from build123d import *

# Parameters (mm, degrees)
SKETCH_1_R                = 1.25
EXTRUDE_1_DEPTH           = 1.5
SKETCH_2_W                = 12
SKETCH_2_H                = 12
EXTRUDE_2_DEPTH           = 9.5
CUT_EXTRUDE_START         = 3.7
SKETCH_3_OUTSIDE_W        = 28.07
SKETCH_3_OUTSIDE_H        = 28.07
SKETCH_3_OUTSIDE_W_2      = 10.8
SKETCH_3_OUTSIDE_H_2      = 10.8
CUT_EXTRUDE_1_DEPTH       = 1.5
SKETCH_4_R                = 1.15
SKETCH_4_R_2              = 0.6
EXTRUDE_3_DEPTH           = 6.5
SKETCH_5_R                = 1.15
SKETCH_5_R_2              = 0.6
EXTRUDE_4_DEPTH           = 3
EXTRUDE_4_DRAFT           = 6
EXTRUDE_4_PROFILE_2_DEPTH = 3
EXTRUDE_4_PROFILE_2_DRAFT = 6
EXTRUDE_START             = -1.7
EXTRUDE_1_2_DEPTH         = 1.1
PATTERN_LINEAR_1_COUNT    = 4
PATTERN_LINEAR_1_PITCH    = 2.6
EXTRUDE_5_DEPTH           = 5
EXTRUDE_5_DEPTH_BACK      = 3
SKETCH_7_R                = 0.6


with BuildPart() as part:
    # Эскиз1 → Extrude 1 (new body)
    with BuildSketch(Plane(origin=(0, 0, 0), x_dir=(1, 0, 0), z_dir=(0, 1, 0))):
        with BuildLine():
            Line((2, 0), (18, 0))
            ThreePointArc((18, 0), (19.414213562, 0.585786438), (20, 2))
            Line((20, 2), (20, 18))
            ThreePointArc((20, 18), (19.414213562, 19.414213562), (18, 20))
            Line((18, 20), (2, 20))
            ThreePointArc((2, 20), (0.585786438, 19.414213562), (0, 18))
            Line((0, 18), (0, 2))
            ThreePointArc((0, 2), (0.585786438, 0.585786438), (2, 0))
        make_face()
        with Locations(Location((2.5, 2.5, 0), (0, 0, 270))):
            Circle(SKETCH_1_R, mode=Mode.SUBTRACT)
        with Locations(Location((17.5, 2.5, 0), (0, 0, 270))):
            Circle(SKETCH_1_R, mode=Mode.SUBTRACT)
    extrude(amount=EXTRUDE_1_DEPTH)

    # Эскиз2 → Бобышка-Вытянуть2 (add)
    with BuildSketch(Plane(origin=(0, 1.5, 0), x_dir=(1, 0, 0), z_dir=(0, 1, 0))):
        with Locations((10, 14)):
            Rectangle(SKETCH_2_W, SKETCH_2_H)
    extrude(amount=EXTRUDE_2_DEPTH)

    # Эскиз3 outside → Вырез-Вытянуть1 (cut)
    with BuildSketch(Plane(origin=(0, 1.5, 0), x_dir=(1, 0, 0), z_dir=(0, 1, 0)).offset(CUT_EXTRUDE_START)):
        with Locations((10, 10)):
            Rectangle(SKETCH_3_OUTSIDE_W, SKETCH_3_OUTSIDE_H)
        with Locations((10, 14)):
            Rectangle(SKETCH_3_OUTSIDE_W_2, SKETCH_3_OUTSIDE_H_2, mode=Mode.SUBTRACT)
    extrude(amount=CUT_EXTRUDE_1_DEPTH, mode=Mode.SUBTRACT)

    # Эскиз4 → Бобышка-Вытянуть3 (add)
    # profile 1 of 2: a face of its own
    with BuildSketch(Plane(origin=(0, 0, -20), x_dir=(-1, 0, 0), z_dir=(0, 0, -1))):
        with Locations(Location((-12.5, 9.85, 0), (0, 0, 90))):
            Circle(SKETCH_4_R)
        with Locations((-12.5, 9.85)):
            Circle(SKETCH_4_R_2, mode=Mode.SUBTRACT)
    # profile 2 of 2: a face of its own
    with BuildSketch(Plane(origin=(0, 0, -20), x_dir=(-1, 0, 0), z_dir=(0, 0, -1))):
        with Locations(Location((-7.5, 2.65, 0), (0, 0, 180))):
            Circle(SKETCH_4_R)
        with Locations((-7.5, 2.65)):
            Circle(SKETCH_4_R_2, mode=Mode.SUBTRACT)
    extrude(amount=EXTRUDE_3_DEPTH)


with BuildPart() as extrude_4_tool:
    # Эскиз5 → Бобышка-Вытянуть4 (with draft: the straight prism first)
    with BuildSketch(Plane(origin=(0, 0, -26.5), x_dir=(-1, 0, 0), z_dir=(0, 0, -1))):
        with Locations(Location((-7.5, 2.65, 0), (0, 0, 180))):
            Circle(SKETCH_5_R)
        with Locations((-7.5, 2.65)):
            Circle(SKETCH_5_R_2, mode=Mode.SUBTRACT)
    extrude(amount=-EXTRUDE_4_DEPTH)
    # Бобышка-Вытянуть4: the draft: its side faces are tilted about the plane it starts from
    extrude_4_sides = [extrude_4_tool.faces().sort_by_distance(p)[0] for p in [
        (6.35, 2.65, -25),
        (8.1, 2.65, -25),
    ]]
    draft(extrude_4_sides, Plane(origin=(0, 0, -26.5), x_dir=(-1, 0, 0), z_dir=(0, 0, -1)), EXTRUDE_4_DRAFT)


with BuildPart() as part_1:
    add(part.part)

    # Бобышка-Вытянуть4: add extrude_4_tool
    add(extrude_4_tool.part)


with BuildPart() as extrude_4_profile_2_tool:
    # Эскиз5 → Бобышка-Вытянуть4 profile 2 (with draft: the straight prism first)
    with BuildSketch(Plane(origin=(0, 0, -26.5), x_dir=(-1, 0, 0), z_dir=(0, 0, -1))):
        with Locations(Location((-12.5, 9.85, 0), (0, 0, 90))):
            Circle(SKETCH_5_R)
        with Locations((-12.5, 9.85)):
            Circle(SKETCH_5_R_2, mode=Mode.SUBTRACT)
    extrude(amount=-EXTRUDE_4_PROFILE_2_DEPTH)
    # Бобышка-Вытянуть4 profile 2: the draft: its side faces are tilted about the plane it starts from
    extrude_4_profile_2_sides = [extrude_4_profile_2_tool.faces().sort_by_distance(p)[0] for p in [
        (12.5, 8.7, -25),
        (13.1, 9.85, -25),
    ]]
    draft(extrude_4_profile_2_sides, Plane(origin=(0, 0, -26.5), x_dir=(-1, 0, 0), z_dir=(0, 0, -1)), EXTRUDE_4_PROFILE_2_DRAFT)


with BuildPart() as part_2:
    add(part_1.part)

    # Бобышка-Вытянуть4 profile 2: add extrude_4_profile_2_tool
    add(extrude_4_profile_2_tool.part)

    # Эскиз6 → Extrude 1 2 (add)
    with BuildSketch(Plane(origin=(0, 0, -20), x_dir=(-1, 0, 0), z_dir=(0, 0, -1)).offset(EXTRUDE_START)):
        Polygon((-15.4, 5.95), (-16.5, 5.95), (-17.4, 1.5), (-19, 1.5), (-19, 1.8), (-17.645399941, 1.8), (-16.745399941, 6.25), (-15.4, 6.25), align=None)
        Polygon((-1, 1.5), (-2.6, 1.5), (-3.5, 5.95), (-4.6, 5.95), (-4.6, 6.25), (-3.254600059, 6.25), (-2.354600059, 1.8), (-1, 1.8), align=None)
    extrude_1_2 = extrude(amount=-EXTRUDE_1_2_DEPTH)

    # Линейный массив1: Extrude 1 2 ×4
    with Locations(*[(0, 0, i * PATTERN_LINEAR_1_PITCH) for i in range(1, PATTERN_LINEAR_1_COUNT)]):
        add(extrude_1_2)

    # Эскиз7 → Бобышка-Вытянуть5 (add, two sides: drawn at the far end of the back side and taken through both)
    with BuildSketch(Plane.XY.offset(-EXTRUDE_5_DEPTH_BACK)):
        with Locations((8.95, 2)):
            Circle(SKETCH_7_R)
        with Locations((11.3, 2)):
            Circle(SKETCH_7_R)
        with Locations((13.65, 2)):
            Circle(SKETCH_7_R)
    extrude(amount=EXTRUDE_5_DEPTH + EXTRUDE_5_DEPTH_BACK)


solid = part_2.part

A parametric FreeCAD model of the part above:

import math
import FreeCAD as App
import Part
import Sketcher
from FreeCAD import Vector


def faces_at(feature, points):
    """Names of the faces that lie closest to the given points."""
    faces = feature.Shape.Faces
    near = lambda p: min(range(len(faces)), key=lambda i: faces[i].distToShape(Part.Vertex(*p))[0])
    return sorted({f"Face{near(p) + 1}" for p in points})

doc = App.newDocument("Part")
body = doc.addObject("PartDesign::Body", "Body")

# Sketch on XZ plane
sketch1 = doc.addObject("Sketcher::SketchObject", "Sketch")
body.addObject(sketch1)
sketch1.AttachmentSupport = (doc.XZ_Plane, [""])
sketch1.MapMode = "FlatFace"
sketch1.addGeometry([
    Part.LineSegment(Vector(2, 0, 0), Vector(18, 0, 0)),  # 0
    Part.ArcOfCircle(Part.Circle(Vector(18, -2, 0), Vector(0, 0, 1), 2), math.radians(0), math.radians(90)),  # 1
    Part.LineSegment(Vector(20, -2, 0), Vector(20, -18, 0)),  # 2
    Part.ArcOfCircle(Part.Circle(Vector(18, -18, 0), Vector(0, 0, 1), 2), math.radians(-90), math.radians(0)),  # 3
    Part.LineSegment(Vector(18, -20, 0), Vector(2, -20, 0)),  # 4
    Part.ArcOfCircle(Part.Circle(Vector(2, -18, 0), Vector(0, 0, 1), 2), math.radians(-180), math.radians(-90)),  # 5
    Part.LineSegment(Vector(0, -18, 0), Vector(0, -2, 0)),  # 6
    Part.ArcOfCircle(Part.Circle(Vector(2, -2, 0), Vector(0, 0, 1), 2), math.radians(90), math.radians(180)),  # 7
    Part.Circle(Vector(2.5, -2.5, 0), Vector(0, 0, 1), 1.25),  # 8
    Part.Circle(Vector(17.5, -2.5, 0), Vector(0, 0, 1), 1.25),  # 9
], False)
sketch1.addConstraint([
    Sketcher.Constraint("Tangent", 0, 2, 1, 2),
    Sketcher.Constraint("Tangent", 1, 1, 2, 1),
    Sketcher.Constraint("Tangent", 2, 2, 3, 2),
    Sketcher.Constraint("Tangent", 3, 1, 4, 1),
    Sketcher.Constraint("Tangent", 4, 2, 5, 2),
    Sketcher.Constraint("Tangent", 5, 1, 6, 1),
    Sketcher.Constraint("Tangent", 6, 2, 7, 2),
    Sketcher.Constraint("Tangent", 7, 1, 0, 1),
    Sketcher.Constraint("Horizontal", 0),
    Sketcher.Constraint("Vertical", 2),
    Sketcher.Constraint("Horizontal", 4),
    Sketcher.Constraint("Vertical", 6),
    Sketcher.Constraint("Equal", 1, 3),
    Sketcher.Constraint("Equal", 3, 5),
    Sketcher.Constraint("Equal", 5, 7),
    Sketcher.Constraint("Equal", 8, 9),
    Sketcher.Constraint("PointOnObject", 0, 2, -1),
    Sketcher.Constraint("PointOnObject", 5, 1, -2),
    Sketcher.Constraint("Horizontal", 8, 3, 9, 3),
    Sketcher.Constraint("Equal", 4, 2),
    Sketcher.Constraint("Radius", 1, 2.0),
    Sketcher.Constraint("Diameter", 8, 2.5),
    Sketcher.Constraint("DistanceX", 0, 1, 0, 2, 16.0),
    Sketcher.Constraint("DistanceX", 8, 3, 9, 3, 15.0),
    Sketcher.Constraint("DistanceX", -1, 1, 8, 3, 2.5),
    Sketcher.Constraint("DistanceY", 8, 3, -1, 1, 2.5),
])
pad1 = doc.addObject("PartDesign::Pad", "Pad")
body.addObject(pad1)
pad1.Profile = sketch1
pad1.Length = 1.5
pad1.Reversed = True

# Sketch on XZ plane
sketch2 = doc.addObject("Sketcher::SketchObject", "Sketch001")
body.addObject(sketch2)
sketch2.AttachmentSupport = (doc.XZ_Plane, [""])
sketch2.MapMode = "FlatFace"
sketch2.AttachmentOffset = App.Placement(Vector(0, 0, -1.5), App.Rotation())
sketch2.addGeometry([
    Part.LineSegment(Vector(4, -20, 0), Vector(4, -8, 0)),
    Part.LineSegment(Vector(4, -8, 0), Vector(16, -8, 0)),
    Part.LineSegment(Vector(16, -8, 0), Vector(16, -20, 0)),
    Part.LineSegment(Vector(16, -20, 0), Vector(4, -20, 0)),
], False)
sketch2.addConstraint([
    Sketcher.Constraint("Coincident", 0, 2, 1, 1),
    Sketcher.Constraint("Coincident", 1, 2, 2, 1),
    Sketcher.Constraint("Coincident", 2, 2, 3, 1),
    Sketcher.Constraint("Coincident", 3, 2, 0, 1),
    Sketcher.Constraint("Vertical", 0),
    Sketcher.Constraint("Horizontal", 1),
    Sketcher.Constraint("Vertical", 2),
    Sketcher.Constraint("Horizontal", 3),
    Sketcher.Constraint("Equal", 3, 0),
    Sketcher.Constraint("DistanceX", 1, 1, 1, 2, 12.0),
    Sketcher.Constraint("DistanceX", -1, 1, 0, 2, 4.0),
    Sketcher.Constraint("DistanceY", 0, 2, -1, 1, 8.0),
])
pad2 = doc.addObject("PartDesign::Pad", "Pad001")
body.addObject(pad2)
pad2.Profile = sketch2
pad2.Length = 9.5
pad2.Reversed = True

# Sketch on XZ plane
sketch3 = doc.addObject("Sketcher::SketchObject", "Sketch002")
body.addObject(sketch3)
sketch3.AttachmentSupport = (doc.XZ_Plane, [""])
sketch3.MapMode = "FlatFace"
sketch3.AttachmentOffset = App.Placement(Vector(0, 0, -5.2), App.Rotation())
sketch3.addGeometry([
    Part.LineSegment(Vector(-4.035, -24.035, 0), Vector(-4.035, 4.035, 0)),  # 0
    Part.LineSegment(Vector(-4.035, 4.035, 0), Vector(24.035, 4.035, 0)),  # 1
    Part.LineSegment(Vector(24.035, 4.035, 0), Vector(24.035, -24.035, 0)),  # 2
    Part.LineSegment(Vector(24.035, -24.035, 0), Vector(-4.035, -24.035, 0)),  # 3
    Part.LineSegment(Vector(15.4, -8.6, 0), Vector(4.6, -8.6, 0)),  # 4
    Part.LineSegment(Vector(4.6, -8.6, 0), Vector(4.6, -19.4, 0)),  # 5
    Part.LineSegment(Vector(4.6, -19.4, 0), Vector(15.4, -19.4, 0)),  # 6
    Part.LineSegment(Vector(15.4, -19.4, 0), Vector(15.4, -8.6, 0)),  # 7
], False)
sketch3.addConstraint([
    Sketcher.Constraint("Coincident", 0, 2, 1, 1),
    Sketcher.Constraint("Coincident", 1, 2, 2, 1),
    Sketcher.Constraint("Coincident", 2, 2, 3, 1),
    Sketcher.Constraint("Coincident", 3, 2, 0, 1),
    Sketcher.Constraint("Coincident", 4, 2, 5, 1),
    Sketcher.Constraint("Coincident", 5, 2, 6, 1),
    Sketcher.Constraint("Coincident", 6, 2, 7, 1),
    Sketcher.Constraint("Coincident", 7, 2, 4, 1),
    Sketcher.Constraint("Vertical", 0),
    Sketcher.Constraint("Horizontal", 1),
    Sketcher.Constraint("Vertical", 2),
    Sketcher.Constraint("Horizontal", 3),
    Sketcher.Constraint("Horizontal", 4),
    Sketcher.Constraint("Vertical", 5),
    Sketcher.Constraint("Horizontal", 6),
    Sketcher.Constraint("Vertical", 7),
    Sketcher.Constraint("Equal", 3, 0),
    Sketcher.Constraint("Equal", 6, 5),
    Sketcher.Constraint("DistanceX", 4, 2, 4, 1, 10.8),
    Sketcher.Constraint("DistanceX", 1, 1, 1, 2, 28.07),
    Sketcher.Constraint("DistanceX", -1, 1, 4, 2, 4.6),
    Sketcher.Constraint("DistanceY", 4, 2, -1, 1, 8.6),
    Sketcher.Constraint("DistanceX", 0, 2, -1, 1, 4.035),
    Sketcher.Constraint("DistanceY", -1, 1, 0, 2, 4.035),
])
pocket1 = doc.addObject("PartDesign::Pocket", "Pocket")
body.addObject(pocket1)
pocket1.Profile = sketch3
pocket1.Length = 1.5

# Sketch on XY plane
sketch4 = doc.addObject("Sketcher::SketchObject", "Sketch003")
body.addObject(sketch4)
sketch4.AttachmentSupport = (doc.XY_Plane, [""])
sketch4.MapMode = "FlatFace"
sketch4.AttachmentOffset = App.Placement(Vector(0, 0, -20), App.Rotation())
sketch4.addGeometry([
    Part.Circle(Vector(12.5, 9.85, 0), Vector(0, 0, 1), 1.15),
    Part.Circle(Vector(12.5, 9.85, 0), Vector(0, 0, 1), 0.6),
    Part.Circle(Vector(7.5, 2.65, 0), Vector(0, 0, 1), 1.15),
    Part.Circle(Vector(7.5, 2.65, 0), Vector(0, 0, 1), 0.6),
], False)
sketch4.addConstraint([
    Sketcher.Constraint("Coincident", 1, 3, 0, 3),
    Sketcher.Constraint("Coincident", 3, 3, 2, 3),
    Sketcher.Constraint("Equal", 0, 2),
    Sketcher.Constraint("Equal", 1, 3),
    Sketcher.Constraint("Diameter", 0, 2.3),
    Sketcher.Constraint("Diameter", 1, 1.2),
    Sketcher.Constraint("DistanceX", 2, 3, 0, 3, 5.0),
    Sketcher.Constraint("DistanceX", -1, 1, 0, 3, 12.5),
    Sketcher.Constraint("DistanceY", 2, 3, 0, 3, 7.2),
    Sketcher.Constraint("DistanceY", -1, 1, 0, 3, 9.85),
])
pad3 = doc.addObject("PartDesign::Pad", "Pad002")
body.addObject(pad3)
pad3.Profile = sketch4
pad3.Length = 6.5
pad3.Reversed = True
body2 = doc.addObject("PartDesign::Body", "Body001")

# Sketch on XY plane
sketch5 = doc.addObject("Sketcher::SketchObject", "Sketch004")
body2.addObject(sketch5)
sketch5.AttachmentSupport = (doc.getObject("XY_Plane001"), [""])
sketch5.MapMode = "FlatFace"
sketch5.AttachmentOffset = App.Placement(Vector(0, 0, -26.5), App.Rotation())
sketch5.addGeometry([
    Part.Circle(Vector(7.5, 2.65, 0), Vector(0, 0, 1), 1.15),
    Part.Circle(Vector(7.5, 2.65, 0), Vector(0, 0, 1), 0.6),
], False)
sketch5.addConstraint([
    Sketcher.Constraint("Coincident", 1, 3, 0, 3),
    Sketcher.Constraint("Diameter", 0, 2.3),
    Sketcher.Constraint("Diameter", 1, 1.2),
    Sketcher.Constraint("DistanceX", -1, 1, 0, 3, 7.5),
    Sketcher.Constraint("DistanceY", -1, 1, 0, 3, 2.65),
])
pad4 = doc.addObject("PartDesign::Pad", "Pad003")
body2.addObject(pad4)
pad4.Profile = sketch5
pad4.Length = 3
doc.recompute()

datumplane = doc.addObject("PartDesign::Plane", "DatumPlane")
body2.addObject(datumplane)
datumplane.AttachmentSupport = (doc.getObject("XY_Plane001"), [""])
datumplane.MapMode = "FlatFace"
datumplane.AttachmentOffset = App.Placement(Vector(0, 0, -26.5), App.Rotation())
draft = doc.addObject("PartDesign::Draft", "Draft")
body2.addObject(draft)
draft.Base = (pad4, faces_at(pad4, [(6.35, 2.65, -25), (8.1, 2.65, -25)]))
draft.NeutralPlane = (datumplane, [""])
draft.Angle = 6
draft.Reversed = True
doc.recompute()

boolean = doc.addObject("PartDesign::Boolean", "Boolean")
body.addObject(boolean)
boolean.Type = "Fuse"
boolean.addObjects([body2])
body3 = doc.addObject("PartDesign::Body", "Body002")

# Sketch on XY plane
sketch6 = doc.addObject("Sketcher::SketchObject", "Sketch005")
body3.addObject(sketch6)
sketch6.AttachmentSupport = (doc.getObject("XY_Plane002"), [""])
sketch6.MapMode = "FlatFace"
sketch6.AttachmentOffset = App.Placement(Vector(0, 0, -26.5), App.Rotation())
sketch6.addGeometry([
    Part.Circle(Vector(12.5, 9.85, 0), Vector(0, 0, 1), 1.15),
    Part.Circle(Vector(12.5, 9.85, 0), Vector(0, 0, 1), 0.6),
], False)
sketch6.addConstraint([
    Sketcher.Constraint("Coincident", 1, 3, 0, 3),
    Sketcher.Constraint("Diameter", 0, 2.3),
    Sketcher.Constraint("Diameter", 1, 1.2),
    Sketcher.Constraint("DistanceX", -1, 1, 0, 3, 12.5),
    Sketcher.Constraint("DistanceY", -1, 1, 0, 3, 9.85),
])
pad5 = doc.addObject("PartDesign::Pad", "Pad004")
body3.addObject(pad5)
pad5.Profile = sketch6
pad5.Length = 3
doc.recompute()

datumplane2 = doc.addObject("PartDesign::Plane", "DatumPlane001")
body3.addObject(datumplane2)
datumplane2.AttachmentSupport = (doc.getObject("XY_Plane002"), [""])
datumplane2.MapMode = "FlatFace"
datumplane2.AttachmentOffset = App.Placement(Vector(0, 0, -26.5), App.Rotation())
draft2 = doc.addObject("PartDesign::Draft", "Draft001")
body3.addObject(draft2)
draft2.Base = (pad5, faces_at(pad5, [(12.5, 8.7, -25), (13.1, 9.85, -25)]))
draft2.NeutralPlane = (datumplane2, [""])
draft2.Angle = 6
draft2.Reversed = True
doc.recompute()

boolean2 = doc.addObject("PartDesign::Boolean", "Boolean001")
body.addObject(boolean2)
boolean2.Type = "Fuse"
boolean2.addObjects([body3])

# Sketch on XY plane
sketch7 = doc.addObject("Sketcher::SketchObject", "Sketch006")
body.addObject(sketch7)
sketch7.AttachmentSupport = (doc.XY_Plane, [""])
sketch7.MapMode = "FlatFace"
sketch7.AttachmentOffset = App.Placement(Vector(0, 0, -18.3), App.Rotation())
sketch7.addGeometry([
    Part.LineSegment(Vector(16.5, 5.95, 0), Vector(15.4, 5.95, 0)),  # 0
    Part.LineSegment(Vector(15.4, 5.95, 0), Vector(15.4, 6.25, 0)),  # 1
    Part.LineSegment(Vector(15.4, 6.25, 0), Vector(16.7454, 6.25, 0)),  # 2
    Part.LineSegment(Vector(16.7454, 6.25, 0), Vector(17.6454, 1.8, 0)),  # 3
    Part.LineSegment(Vector(17.6454, 1.8, 0), Vector(19, 1.8, 0)),  # 4
    Part.LineSegment(Vector(19, 1.8, 0), Vector(19, 1.5, 0)),  # 5
    Part.LineSegment(Vector(19, 1.5, 0), Vector(17.4, 1.5, 0)),  # 6
    Part.LineSegment(Vector(17.4, 1.5, 0), Vector(16.5, 5.95, 0)),  # 7
    Part.LineSegment(Vector(2.6, 1.5, 0), Vector(1, 1.5, 0)),  # 8
    Part.LineSegment(Vector(1, 1.5, 0), Vector(1, 1.8, 0)),  # 9
    Part.LineSegment(Vector(1, 1.8, 0), Vector(2.3546, 1.8, 0)),  # 10
    Part.LineSegment(Vector(2.3546, 1.8, 0), Vector(3.2546, 6.25, 0)),  # 11
    Part.LineSegment(Vector(3.2546, 6.25, 0), Vector(4.6, 6.25, 0)),  # 12
    Part.LineSegment(Vector(4.6, 6.25, 0), Vector(4.6, 5.95, 0)),  # 13
    Part.LineSegment(Vector(4.6, 5.95, 0), Vector(3.5, 5.95, 0)),  # 14
    Part.LineSegment(Vector(3.5, 5.95, 0), Vector(2.6, 1.5, 0)),  # 15
], False)
sketch7.addConstraint([
    Sketcher.Constraint("Coincident", 0, 2, 1, 1),
    Sketcher.Constraint("Coincident", 1, 2, 2, 1),
    Sketcher.Constraint("Coincident", 2, 2, 3, 1),
    Sketcher.Constraint("Coincident", 3, 2, 4, 1),
    Sketcher.Constraint("Coincident", 4, 2, 5, 1),
    Sketcher.Constraint("Coincident", 5, 2, 6, 1),
    Sketcher.Constraint("Coincident", 6, 2, 7, 1),
    Sketcher.Constraint("Coincident", 7, 2, 0, 1),
    Sketcher.Constraint("Coincident", 8, 2, 9, 1),
    Sketcher.Constraint("Coincident", 9, 2, 10, 1),
    Sketcher.Constraint("Coincident", 10, 2, 11, 1),
    Sketcher.Constraint("Coincident", 11, 2, 12, 1),
    Sketcher.Constraint("Coincident", 12, 2, 13, 1),
    Sketcher.Constraint("Coincident", 13, 2, 14, 1),
    Sketcher.Constraint("Coincident", 14, 2, 15, 1),
    Sketcher.Constraint("Coincident", 15, 2, 8, 1),
    Sketcher.Constraint("Horizontal", 0),
    Sketcher.Constraint("Vertical", 1),
    Sketcher.Constraint("Horizontal", 2),
    Sketcher.Constraint("Horizontal", 4),
    Sketcher.Constraint("Vertical", 5),
    Sketcher.Constraint("Horizontal", 6),
    Sketcher.Constraint("Horizontal", 8),
    Sketcher.Constraint("Vertical", 9),
    Sketcher.Constraint("Horizontal", 10),
    Sketcher.Constraint("Horizontal", 12),
    Sketcher.Constraint("Vertical", 13),
    Sketcher.Constraint("Horizontal", 14),
    Sketcher.Constraint("Parallel", 3, 7),
    Sketcher.Constraint("Parallel", 11, 15),
    Sketcher.Constraint("Horizontal", 6, 2, 8, 2),
    Sketcher.Constraint("Horizontal", 4, 2, 9, 2),
    Sketcher.Constraint("Horizontal", 2, 2, 11, 2),
    Sketcher.Constraint("Horizontal", 7, 2, 13, 2),
    Sketcher.Constraint("Equal", 6, 8),
    Sketcher.Constraint("Equal", 4, 10),
    Sketcher.Constraint("Equal", 2, 12),
    Sketcher.Constraint("Equal", 1, 5),
    Sketcher.Constraint("Equal", 7, 11),
    Sketcher.Constraint("DistanceX", 0, 2, 0, 1, 1.1),
    Sketcher.Constraint("DistanceX", 6, 2, 6, 1, 1.6),
    Sketcher.Constraint("DistanceY", 1, 1, 1, 2, 0.3),
    Sketcher.Constraint("DistanceX", -1, 1, 4, 2, 19.0),
    Sketcher.Constraint("DistanceX", -1, 1, 8, 2, 1.0),
    Sketcher.Constraint("DistanceX", 0, 2, 6, 2, 2.0),
    Sketcher.Constraint("DistanceY", -1, 1, 3, 2, 1.8),
    Sketcher.Constraint("DistanceY", -1, 1, 0, 2, 5.95),
    Sketcher.Constraint("DistanceX", 2, 1, 2, 2, 1.3454),
])
pad6 = doc.addObject("PartDesign::Pad", "Pad005")
body.addObject(pad6)
pad6.Profile = sketch7
pad6.Length = 1.1
doc.recompute()

linearpattern = doc.addObject("PartDesign::LinearPattern", "LinearPattern")
body.addObject(linearpattern)
linearpattern.Originals = [pad6]
linearpattern.Direction = (doc.Z_Axis, [""])
linearpattern.Mode = "offset"
linearpattern.Offset = 2.6
linearpattern.Occurrences = 4
body.Tip = linearpattern

# Sketch on XY plane
sketch8 = doc.addObject("Sketcher::SketchObject", "Sketch007")
body.addObject(sketch8)
sketch8.AttachmentSupport = (doc.XY_Plane, [""])
sketch8.MapMode = "FlatFace"
sketch8.addGeometry([
    Part.Circle(Vector(8.95, 2, 0), Vector(0, 0, 1), 0.6),
    Part.Circle(Vector(11.3, 2, 0), Vector(0, 0, 1), 0.6),
    Part.Circle(Vector(13.65, 2, 0), Vector(0, 0, 1), 0.6),
], False)
sketch8.addConstraint([
    Sketcher.Constraint("Equal", 0, 1),
    Sketcher.Constraint("Equal", 1, 2),
    Sketcher.Constraint("Horizontal", 0, 3, 1, 3),
    Sketcher.Constraint("Horizontal", 1, 3, 2, 3),
    Sketcher.Constraint("Diameter", 0, 1.2),
    Sketcher.Constraint("DistanceY", -1, 1, 0, 3, 2.0),
    Sketcher.Constraint("DistanceX", -1, 1, 1, 3, 11.3),
    Sketcher.Constraint("DistanceX", 0, 3, 2, 3, 4.7),
    Sketcher.Constraint("DistanceX", -1, 1, 0, 3, 8.95),
])
pad7 = doc.addObject("PartDesign::Pad", "Pad006")
body.addObject(pad7)
pad7.Profile = sketch8
pad7.Type = "TwoLengths"
pad7.Length = 5
pad7.Length2 = 3

doc.recompute()
